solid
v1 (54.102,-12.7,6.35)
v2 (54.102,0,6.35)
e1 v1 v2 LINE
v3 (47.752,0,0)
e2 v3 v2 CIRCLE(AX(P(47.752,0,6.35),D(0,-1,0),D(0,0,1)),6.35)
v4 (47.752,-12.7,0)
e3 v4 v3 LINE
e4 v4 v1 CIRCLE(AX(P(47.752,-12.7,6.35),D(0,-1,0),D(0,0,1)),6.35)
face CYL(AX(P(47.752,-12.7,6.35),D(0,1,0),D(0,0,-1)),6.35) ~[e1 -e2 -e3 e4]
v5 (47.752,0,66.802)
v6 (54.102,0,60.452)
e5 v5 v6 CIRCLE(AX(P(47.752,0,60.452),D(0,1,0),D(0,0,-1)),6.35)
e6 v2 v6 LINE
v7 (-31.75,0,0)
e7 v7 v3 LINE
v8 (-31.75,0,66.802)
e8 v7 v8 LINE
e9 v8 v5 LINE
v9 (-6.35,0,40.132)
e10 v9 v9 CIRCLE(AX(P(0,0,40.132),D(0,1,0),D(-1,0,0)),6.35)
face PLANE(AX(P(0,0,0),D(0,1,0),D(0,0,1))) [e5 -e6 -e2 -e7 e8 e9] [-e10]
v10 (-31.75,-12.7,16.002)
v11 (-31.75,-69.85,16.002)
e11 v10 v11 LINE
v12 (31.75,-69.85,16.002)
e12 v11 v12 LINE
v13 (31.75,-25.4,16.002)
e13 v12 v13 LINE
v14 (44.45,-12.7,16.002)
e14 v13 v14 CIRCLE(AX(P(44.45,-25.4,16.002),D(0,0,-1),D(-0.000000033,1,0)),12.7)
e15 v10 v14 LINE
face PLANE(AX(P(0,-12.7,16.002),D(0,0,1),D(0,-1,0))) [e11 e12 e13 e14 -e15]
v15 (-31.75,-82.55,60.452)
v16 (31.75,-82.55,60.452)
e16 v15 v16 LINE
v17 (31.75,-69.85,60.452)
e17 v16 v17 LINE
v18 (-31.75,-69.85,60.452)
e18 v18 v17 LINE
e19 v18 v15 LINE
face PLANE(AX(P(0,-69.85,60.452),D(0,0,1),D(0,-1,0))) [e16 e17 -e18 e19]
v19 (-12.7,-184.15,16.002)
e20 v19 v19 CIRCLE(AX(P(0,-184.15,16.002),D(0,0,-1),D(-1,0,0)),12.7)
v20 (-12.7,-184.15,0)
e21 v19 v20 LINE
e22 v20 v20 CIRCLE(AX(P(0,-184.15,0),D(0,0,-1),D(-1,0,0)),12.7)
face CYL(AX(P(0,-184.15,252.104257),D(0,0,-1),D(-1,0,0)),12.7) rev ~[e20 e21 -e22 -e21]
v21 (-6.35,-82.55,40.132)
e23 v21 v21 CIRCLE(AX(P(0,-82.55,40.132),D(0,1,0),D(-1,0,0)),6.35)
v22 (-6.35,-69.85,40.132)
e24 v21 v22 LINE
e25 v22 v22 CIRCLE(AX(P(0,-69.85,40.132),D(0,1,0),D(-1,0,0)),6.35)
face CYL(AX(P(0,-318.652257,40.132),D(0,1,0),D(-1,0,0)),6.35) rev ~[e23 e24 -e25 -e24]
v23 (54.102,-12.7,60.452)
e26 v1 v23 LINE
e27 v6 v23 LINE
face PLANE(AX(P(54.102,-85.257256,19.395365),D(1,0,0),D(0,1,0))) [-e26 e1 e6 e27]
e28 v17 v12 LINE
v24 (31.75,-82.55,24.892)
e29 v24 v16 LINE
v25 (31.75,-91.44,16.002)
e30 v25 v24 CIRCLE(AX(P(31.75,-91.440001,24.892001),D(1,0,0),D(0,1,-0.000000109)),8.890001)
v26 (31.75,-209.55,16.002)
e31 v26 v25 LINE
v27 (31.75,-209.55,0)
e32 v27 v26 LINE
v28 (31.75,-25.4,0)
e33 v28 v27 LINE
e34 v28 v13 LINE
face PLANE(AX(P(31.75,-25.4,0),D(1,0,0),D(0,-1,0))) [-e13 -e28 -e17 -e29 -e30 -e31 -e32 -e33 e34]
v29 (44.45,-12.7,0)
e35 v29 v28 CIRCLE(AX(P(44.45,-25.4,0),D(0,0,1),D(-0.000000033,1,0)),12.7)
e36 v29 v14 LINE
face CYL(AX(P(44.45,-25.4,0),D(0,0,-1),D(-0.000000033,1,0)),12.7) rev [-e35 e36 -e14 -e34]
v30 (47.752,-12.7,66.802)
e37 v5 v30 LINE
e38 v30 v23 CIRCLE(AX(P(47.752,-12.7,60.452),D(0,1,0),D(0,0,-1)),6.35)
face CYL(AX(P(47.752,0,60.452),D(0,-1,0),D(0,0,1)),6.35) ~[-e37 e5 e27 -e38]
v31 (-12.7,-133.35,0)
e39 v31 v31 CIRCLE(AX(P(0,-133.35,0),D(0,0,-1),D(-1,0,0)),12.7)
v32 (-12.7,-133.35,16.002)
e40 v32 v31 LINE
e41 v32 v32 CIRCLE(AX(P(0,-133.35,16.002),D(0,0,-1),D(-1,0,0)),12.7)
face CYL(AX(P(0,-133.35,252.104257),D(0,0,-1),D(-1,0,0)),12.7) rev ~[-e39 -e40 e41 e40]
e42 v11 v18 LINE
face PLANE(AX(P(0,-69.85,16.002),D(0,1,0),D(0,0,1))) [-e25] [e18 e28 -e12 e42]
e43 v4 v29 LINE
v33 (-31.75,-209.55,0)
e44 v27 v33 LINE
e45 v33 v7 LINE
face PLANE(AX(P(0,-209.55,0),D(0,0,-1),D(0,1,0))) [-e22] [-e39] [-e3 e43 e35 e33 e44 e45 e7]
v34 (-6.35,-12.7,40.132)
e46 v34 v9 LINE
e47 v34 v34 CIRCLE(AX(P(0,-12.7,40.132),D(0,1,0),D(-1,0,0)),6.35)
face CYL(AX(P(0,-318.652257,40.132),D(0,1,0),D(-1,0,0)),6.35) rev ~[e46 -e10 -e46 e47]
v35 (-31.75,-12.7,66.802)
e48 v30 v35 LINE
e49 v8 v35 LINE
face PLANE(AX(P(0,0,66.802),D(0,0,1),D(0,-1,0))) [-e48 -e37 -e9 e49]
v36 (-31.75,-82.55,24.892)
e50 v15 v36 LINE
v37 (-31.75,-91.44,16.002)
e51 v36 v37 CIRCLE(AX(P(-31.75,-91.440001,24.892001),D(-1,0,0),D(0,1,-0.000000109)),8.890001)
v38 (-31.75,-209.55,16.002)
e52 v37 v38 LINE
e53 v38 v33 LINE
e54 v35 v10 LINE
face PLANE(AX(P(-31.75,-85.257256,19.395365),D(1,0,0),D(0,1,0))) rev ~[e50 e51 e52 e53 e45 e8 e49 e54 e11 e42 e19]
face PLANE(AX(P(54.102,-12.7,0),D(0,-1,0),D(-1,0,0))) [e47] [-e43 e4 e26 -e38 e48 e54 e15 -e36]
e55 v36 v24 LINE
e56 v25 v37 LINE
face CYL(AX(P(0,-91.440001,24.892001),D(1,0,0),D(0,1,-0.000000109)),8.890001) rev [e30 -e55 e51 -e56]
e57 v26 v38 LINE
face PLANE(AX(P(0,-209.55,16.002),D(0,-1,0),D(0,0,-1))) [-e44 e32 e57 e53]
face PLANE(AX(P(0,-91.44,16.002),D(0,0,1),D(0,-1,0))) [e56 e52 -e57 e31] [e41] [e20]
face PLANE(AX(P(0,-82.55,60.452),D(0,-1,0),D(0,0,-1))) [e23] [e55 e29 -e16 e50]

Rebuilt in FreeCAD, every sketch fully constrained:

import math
import FreeCAD as App
import Part
import Sketcher
Q = App.Units.Quantity


def edges_at(feature, points):
    """Names of the edges that pass closest to the given points."""
    edges = feature.Shape.Edges
    near = lambda p: min(range(len(edges)), key=lambda i: edges[i].distToShape(Part.Vertex(*p))[0])
    return sorted({f"Edge{near(p) + 1}" for p in points})

doc = App.newDocument("Part")
body = doc.addObject("PartDesign::Body", "Body")

# Sketch on YZ plane
sketch1 = doc.addObject("Sketcher::SketchObject", "Sketch")
body.addObject(sketch1)
sketch1.AttachmentSupport = (doc.YZ_Plane, [""])
sketch1.MapMode = "FlatFace"
sketch1.addGeometry(Part.LineSegment(App.Vector(-210, 0, 0), App.Vector(0, 0, 0)), False)
sketch1.addGeometry(Part.LineSegment(App.Vector(0, 0, 0), App.Vector(0, 67, 0)), False)
sketch1.addGeometry(Part.LineSegment(App.Vector(0, 67, 0), App.Vector(-13, 67, 0)), False)
sketch1.addGeometry(Part.LineSegment(App.Vector(-13, 67, 0), App.Vector(-13, 16, 0)), False)
sketch1.addGeometry(Part.LineSegment(App.Vector(-13, 16, 0), App.Vector(-70, 16, 0)), False)
sketch1.addGeometry(Part.LineSegment(App.Vector(-70, 16, 0), App.Vector(-70, 60, 0)), False)
sketch1.addGeometry(Part.LineSegment(App.Vector(-70, 60, 0), App.Vector(-83, 60, 0)), False)
sketch1.addGeometry(Part.LineSegment(App.Vector(-83, 60, 0), App.Vector(-83, 25, 0)), False)
sketch1.addGeometry(Part.ArcOfCircle(Part.Circle(App.Vector(-91, 25, 0), App.Vector(0, 0, 1), 9), math.radians(-90), math.radians(0)), False)
sketch1.addGeometry(Part.LineSegment(App.Vector(-91, 16, 0), App.Vector(-210, 16, 0)), False)
sketch1.addGeometry(Part.LineSegment(App.Vector(-210, 16, 0), App.Vector(-210, 0, 0)), False)
sketch1.addConstraint(Sketcher.Constraint("Coincident", 0, 2, 1, 1))
sketch1.addConstraint(Sketcher.Constraint("Coincident", 1, 2, 2, 1))
sketch1.addConstraint(Sketcher.Constraint("Coincident", 2, 2, 3, 1))
sketch1.addConstraint(Sketcher.Constraint("Coincident", 3, 2, 4, 1))
sketch1.addConstraint(Sketcher.Constraint("Coincident", 4, 2, 5, 1))
sketch1.addConstraint(Sketcher.Constraint("Coincident", 5, 2, 6, 1))
sketch1.addConstraint(Sketcher.Constraint("Coincident", 6, 2, 7, 1))
sketch1.addConstraint(Sketcher.Constraint("Tangent", 7, 2, 8, 2))
sketch1.addConstraint(Sketcher.Constraint("Tangent", 8, 1, 9, 1))
sketch1.addConstraint(Sketcher.Constraint("Coincident", 9, 2, 10, 1))
sketch1.addConstraint(Sketcher.Constraint("Coincident", 10, 2, 0, 1))
sketch1.addConstraint(Sketcher.Constraint("Horizontal", 0))
sketch1.addConstraint(Sketcher.Constraint("Vertical", 1))
sketch1.addConstraint(Sketcher.Constraint("Horizontal", 2))
sketch1.addConstraint(Sketcher.Constraint("Vertical", 3))
sketch1.addConstraint(Sketcher.Constraint("Horizontal", 4))
sketch1.addConstraint(Sketcher.Constraint("Vertical", 5))
sketch1.addConstraint(Sketcher.Constraint("Horizontal", 6))
sketch1.addConstraint(Sketcher.Constraint("Vertical", 7))
sketch1.addConstraint(Sketcher.Constraint("Horizontal", 9))
sketch1.addConstraint(Sketcher.Constraint("Vertical", 10))
sketch1.addConstraint(Sketcher.Constraint("Coincident", 0, 2, -1, 1))
sketch1.addConstraint(Sketcher.Constraint("Horizontal", 4, 2, 8, 1))
sketch1.addConstraint(Sketcher.Constraint("Equal", 2, 6))
sketch1.addConstraint(Sketcher.Constraint("DistanceY", 3, 2, 3, 1, Q("2 in")))
sketch1.addConstraint(Sketcher.Constraint("Radius", 8, Q("0.35 in")))
sketch1.addConstraint(Sketcher.Constraint("DistanceX", 2, 2, 2, 1, Q("0.5 in")))
sketch1.addConstraint(Sketcher.Constraint("DistanceY", 7, 2, 7, 1, Q("1.4 in")))
sketch1.addConstraint(Sketcher.Constraint("DistanceX", 9, 2, 7, 2, Q("5 in")))
sketch1.addConstraint(Sketcher.Constraint("DistanceX", 0, 1, 0, 2, Q("8.25 in")))
sketch1.addConstraint(Sketcher.Constraint("DistanceY", 1, 1, 1, 2, Q("2.63 in")))
pad1 = doc.addObject("PartDesign::Pad", "Pad")
body.addObject(pad1)
pad1.Profile = sketch1
pad1.Type = "TwoLengths"
pad1.Length = Q("2.13 in")
pad1.Length2 = Q("1.25 in")

# Sketch on XY plane
sketch2 = doc.addObject("Sketcher::SketchObject", "Sketch001")
body.addObject(sketch2)
sketch2.AttachmentSupport = (doc.XY_Plane, [""])
sketch2.MapMode = "FlatFace"
sketch2.addGeometry(Part.LineSegment(App.Vector(32, -210, 0), App.Vector(54, -210, 0)), False)
sketch2.addGeometry(Part.LineSegment(App.Vector(54, -210, 0), App.Vector(54, -13, 0)), False)
sketch2.addGeometry(Part.LineSegment(App.Vector(54, -13, 0), App.Vector(44, -13, 0)), False)
sketch2.addGeometry(Part.ArcOfCircle(Part.Circle(App.Vector(44, -25, 0), App.Vector(0, 0, 1), 13), math.radians(90), math.radians(180)), False)
sketch2.addGeometry(Part.LineSegment(App.Vector(32, -25, 0), App.Vector(32, -210, 0)), False)
sketch2.addConstraint(Sketcher.Constraint("Coincident", 0, 2, 1, 1))
sketch2.addConstraint(Sketcher.Constraint("Coincident", 1, 2, 2, 1))
sketch2.addConstraint(Sketcher.Constraint("Tangent", 2, 2, 3, 1))
sketch2.addConstraint(Sketcher.Constraint("Tangent", 3, 2, 4, 1))
sketch2.addConstraint(Sketcher.Constraint("Coincident", 4, 2, 0, 1))
sketch2.addConstraint(Sketcher.Constraint("Horizontal", 0))
sketch2.addConstraint(Sketcher.Constraint("Vertical", 1))
sketch2.addConstraint(Sketcher.Constraint("Horizontal", 2))
sketch2.addConstraint(Sketcher.Constraint("Vertical", 4))
sketch2.addConstraint(Sketcher.Constraint("Radius", 3, Q("0.5 in")))
sketch2.addConstraint(Sketcher.Constraint("DistanceY", 3, 3, -1, 1, Q("1 in")))
sketch2.addConstraint(Sketcher.Constraint("DistanceX", 0, 1, 0, 2, Q("0.88 in")))
sketch2.addConstraint(Sketcher.Constraint("DistanceY", 1, 1, 1, 2, Q("7.75 in")))
sketch2.addConstraint(Sketcher.Constraint("DistanceX", -1, 1, 3, 3, Q("1.75 in")))
pocket1 = doc.addObject("PartDesign::Pocket", "Pocket")
body.addObject(pocket1)
pocket1.Profile = sketch2
pocket1.Length = Q("2.63 in")
pocket1.Reversed = True
doc.recompute()

fillet = doc.addObject("PartDesign::Fillet", "Fillet")
body.addObject(fillet)
fillet.Base = (pocket1, edges_at(pocket1, [(54.102, -6.35, 0), (54.102, -6.35, 66.802)]))
fillet.Radius = Q("0.25 in")

# Sketch on XY plane
sketch3 = doc.addObject("Sketcher::SketchObject", "Sketch002")
body.addObject(sketch3)
sketch3.AttachmentSupport = (doc.XY_Plane, [""])
sketch3.MapMode = "FlatFace"
sketch3.AttachmentOffset = App.Placement(App.Vector(0, 0, 0.63 * 25.4), App.Rotation())
sketch3.addGeometry(Part.Circle(App.Vector(0, -133, 0), App.Vector(0, 0, 1), 13), False)
sketch3.addGeometry(Part.Circle(App.Vector(0, -184, 0), App.Vector(0, 0, 1), 13), False)
sketch3.addConstraint(Sketcher.Constraint("Equal", 0, 1))
sketch3.addConstraint(Sketcher.Constraint("PointOnObject", 0, 3, -2))
sketch3.addConstraint(Sketcher.Constraint("PointOnObject", 1, 3, -2))
sketch3.addConstraint(Sketcher.Constraint("Diameter", 0, Q("1 in")))
sketch3.addConstraint(Sketcher.Constraint("DistanceY", 1, 3, 0, 3, Q("2 in")))
sketch3.addConstraint(Sketcher.Constraint("DistanceY", 0, 3, -1, 1, Q("5.25 in")))
doc.recompute()
hole = doc.addObject("PartDesign::Hole", "Hole")
body.addObject(hole)
hole.Profile = sketch3
hole.ThreadType = "None"
hole.Diameter = Q("1 in")
hole.DepthType = "ThroughAll"

# Sketch on XZ plane
sketch4 = doc.addObject("Sketcher::SketchObject", "Sketch003")
body.addObject(sketch4)
sketch4.AttachmentSupport = (doc.XZ_Plane, [""])
sketch4.MapMode = "FlatFace"
sketch4.AttachmentOffset = App.Placement(App.Vector(0, 0, 3.25 * 25.4), App.Rotation())
sketch4.addGeometry(Part.Circle(App.Vector(0, 40, 0), App.Vector(0, 0, 1), 6), False)
sketch4.addConstraint(Sketcher.Constraint("PointOnObject", 0, 3, -2))
sketch4.addConstraint(Sketcher.Constraint("Diameter", 0, Q("0.5 in")))
sketch4.addConstraint(Sketcher.Constraint("DistanceY", -1, 1, 0, 3, Q("1.58 in")))
doc.recompute()
hole2 = doc.addObject("PartDesign::Hole", "Hole001")
body.addObject(hole2)
hole2.Profile = sketch4
hole2.ThreadType = "None"
hole2.Diameter = Q("0.5 in")
hole2.DepthType = "ThroughAll"

doc.recompute()
